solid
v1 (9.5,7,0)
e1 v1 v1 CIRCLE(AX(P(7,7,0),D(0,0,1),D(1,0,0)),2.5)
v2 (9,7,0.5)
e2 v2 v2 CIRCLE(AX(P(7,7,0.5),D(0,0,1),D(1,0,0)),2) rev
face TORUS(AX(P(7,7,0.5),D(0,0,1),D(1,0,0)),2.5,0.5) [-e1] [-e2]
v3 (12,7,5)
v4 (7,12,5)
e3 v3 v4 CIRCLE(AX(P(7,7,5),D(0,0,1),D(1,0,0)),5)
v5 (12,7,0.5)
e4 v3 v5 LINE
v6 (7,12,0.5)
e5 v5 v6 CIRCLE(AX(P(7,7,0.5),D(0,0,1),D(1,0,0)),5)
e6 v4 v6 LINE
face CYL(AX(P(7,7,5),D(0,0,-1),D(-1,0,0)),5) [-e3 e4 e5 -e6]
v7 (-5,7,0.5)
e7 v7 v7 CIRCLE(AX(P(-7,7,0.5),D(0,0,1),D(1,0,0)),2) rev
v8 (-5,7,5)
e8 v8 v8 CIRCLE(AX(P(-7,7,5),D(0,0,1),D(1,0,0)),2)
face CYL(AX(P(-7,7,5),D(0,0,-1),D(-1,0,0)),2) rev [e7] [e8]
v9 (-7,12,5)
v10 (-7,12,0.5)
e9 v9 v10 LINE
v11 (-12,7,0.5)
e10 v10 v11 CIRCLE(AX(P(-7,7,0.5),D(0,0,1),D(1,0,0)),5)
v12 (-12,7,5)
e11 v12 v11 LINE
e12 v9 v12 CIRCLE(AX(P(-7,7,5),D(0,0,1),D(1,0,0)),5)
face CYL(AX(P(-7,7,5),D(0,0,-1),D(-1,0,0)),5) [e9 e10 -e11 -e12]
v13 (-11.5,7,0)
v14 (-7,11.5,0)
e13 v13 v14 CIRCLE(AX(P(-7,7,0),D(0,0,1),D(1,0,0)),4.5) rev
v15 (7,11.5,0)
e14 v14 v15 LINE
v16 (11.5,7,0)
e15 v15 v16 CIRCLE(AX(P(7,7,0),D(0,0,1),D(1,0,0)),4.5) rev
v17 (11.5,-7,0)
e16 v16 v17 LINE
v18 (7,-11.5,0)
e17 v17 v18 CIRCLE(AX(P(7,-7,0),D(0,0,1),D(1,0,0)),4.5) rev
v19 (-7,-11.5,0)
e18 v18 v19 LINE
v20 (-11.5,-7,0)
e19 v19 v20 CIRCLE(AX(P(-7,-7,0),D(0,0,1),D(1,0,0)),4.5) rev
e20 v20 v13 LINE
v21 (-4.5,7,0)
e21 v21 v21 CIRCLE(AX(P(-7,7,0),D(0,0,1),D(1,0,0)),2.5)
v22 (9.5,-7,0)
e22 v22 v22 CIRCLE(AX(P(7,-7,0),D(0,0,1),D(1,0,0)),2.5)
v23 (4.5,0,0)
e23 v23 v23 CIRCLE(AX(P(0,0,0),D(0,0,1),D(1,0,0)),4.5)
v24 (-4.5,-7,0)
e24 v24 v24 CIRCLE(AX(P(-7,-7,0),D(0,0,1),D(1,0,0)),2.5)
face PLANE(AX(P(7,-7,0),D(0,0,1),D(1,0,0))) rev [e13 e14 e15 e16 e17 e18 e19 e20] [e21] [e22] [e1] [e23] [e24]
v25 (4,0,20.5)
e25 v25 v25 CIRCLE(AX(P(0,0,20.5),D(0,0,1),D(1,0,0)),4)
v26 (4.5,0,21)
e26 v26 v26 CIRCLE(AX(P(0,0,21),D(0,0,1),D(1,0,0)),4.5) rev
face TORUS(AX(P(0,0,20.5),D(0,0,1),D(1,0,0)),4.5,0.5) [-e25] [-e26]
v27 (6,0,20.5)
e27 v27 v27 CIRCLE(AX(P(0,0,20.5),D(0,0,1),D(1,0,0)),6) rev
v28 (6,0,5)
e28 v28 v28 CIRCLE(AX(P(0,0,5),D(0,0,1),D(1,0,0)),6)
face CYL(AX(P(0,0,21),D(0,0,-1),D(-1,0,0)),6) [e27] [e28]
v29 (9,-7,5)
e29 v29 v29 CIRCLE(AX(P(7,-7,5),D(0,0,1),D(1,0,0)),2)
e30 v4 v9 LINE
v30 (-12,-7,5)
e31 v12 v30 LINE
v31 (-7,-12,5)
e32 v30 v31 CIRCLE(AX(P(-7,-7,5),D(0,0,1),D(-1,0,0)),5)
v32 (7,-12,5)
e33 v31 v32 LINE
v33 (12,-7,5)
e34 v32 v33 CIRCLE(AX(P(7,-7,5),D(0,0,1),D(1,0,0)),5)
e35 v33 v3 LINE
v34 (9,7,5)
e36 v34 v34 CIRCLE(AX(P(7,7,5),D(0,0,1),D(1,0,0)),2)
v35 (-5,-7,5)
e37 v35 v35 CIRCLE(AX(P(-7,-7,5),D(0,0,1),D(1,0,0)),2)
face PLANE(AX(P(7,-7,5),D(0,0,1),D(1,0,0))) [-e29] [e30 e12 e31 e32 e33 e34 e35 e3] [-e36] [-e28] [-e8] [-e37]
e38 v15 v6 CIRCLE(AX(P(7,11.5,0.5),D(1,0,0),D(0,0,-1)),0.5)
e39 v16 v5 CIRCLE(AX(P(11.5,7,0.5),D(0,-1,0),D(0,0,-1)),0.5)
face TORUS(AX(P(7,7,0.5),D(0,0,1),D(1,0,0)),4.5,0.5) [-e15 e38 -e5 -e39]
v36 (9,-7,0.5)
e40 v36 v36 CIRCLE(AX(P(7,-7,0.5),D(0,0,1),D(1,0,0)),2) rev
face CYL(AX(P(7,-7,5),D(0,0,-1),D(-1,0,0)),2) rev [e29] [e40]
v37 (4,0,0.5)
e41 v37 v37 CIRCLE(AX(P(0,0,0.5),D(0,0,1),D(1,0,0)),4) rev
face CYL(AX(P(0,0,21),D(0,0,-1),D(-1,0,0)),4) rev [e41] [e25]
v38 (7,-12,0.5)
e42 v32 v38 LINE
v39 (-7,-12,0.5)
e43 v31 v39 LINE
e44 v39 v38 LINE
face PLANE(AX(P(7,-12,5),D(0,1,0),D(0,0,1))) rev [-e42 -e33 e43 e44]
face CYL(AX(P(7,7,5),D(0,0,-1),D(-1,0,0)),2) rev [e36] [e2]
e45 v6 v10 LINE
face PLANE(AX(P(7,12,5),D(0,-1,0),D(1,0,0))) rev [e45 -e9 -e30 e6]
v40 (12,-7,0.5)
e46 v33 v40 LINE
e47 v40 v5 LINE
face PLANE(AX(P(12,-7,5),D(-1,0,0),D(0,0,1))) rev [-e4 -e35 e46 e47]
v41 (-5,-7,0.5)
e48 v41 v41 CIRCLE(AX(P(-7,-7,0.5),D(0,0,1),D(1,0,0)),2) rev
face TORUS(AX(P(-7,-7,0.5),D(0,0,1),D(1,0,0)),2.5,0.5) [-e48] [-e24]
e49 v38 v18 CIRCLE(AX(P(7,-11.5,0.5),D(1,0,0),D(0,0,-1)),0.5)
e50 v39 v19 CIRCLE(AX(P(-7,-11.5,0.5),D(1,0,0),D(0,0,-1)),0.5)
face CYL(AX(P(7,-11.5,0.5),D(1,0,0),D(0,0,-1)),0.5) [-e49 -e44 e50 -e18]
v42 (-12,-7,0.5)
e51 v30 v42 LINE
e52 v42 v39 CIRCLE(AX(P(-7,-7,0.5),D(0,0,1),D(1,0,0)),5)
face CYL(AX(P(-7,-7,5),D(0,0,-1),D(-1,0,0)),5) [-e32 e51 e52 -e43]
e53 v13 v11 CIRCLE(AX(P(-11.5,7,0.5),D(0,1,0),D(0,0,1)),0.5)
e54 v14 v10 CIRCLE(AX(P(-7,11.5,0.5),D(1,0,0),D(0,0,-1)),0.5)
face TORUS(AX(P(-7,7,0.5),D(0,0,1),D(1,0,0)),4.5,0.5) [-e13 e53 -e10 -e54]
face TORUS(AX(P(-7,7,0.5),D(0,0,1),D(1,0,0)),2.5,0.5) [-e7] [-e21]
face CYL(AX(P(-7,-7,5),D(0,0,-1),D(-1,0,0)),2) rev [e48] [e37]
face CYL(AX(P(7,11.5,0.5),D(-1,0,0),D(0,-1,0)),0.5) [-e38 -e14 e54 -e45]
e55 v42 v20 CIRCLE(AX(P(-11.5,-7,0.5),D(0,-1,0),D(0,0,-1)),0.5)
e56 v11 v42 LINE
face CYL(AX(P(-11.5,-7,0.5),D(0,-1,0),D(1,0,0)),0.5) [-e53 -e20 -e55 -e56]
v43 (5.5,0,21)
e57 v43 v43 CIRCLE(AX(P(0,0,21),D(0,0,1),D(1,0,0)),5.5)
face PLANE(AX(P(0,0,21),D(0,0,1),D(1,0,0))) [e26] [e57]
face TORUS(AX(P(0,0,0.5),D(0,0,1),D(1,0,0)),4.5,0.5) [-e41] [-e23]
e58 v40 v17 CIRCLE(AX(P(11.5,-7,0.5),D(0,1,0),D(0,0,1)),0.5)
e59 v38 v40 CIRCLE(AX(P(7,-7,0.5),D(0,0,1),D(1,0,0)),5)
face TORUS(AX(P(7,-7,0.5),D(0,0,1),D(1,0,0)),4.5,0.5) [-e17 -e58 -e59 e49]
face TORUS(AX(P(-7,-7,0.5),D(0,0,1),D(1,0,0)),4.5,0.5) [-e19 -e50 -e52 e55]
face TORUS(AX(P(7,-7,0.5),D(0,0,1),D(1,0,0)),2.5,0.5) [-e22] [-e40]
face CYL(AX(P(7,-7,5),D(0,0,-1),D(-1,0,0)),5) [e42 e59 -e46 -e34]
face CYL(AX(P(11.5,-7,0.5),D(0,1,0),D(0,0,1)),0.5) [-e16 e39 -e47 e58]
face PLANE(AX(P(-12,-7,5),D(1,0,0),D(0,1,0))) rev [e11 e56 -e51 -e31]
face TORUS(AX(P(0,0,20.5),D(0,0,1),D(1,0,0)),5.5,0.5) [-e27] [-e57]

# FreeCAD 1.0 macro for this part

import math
import FreeCAD as App
import Part
import Sketcher
from FreeCAD import Vector


def edges_at(feature, points):
    """Names of the edges that pass closest to the given points."""
    edges = feature.Shape.Edges
    near = lambda p: min(range(len(edges)), key=lambda i: edges[i].distToShape(Part.Vertex(*p))[0])
    return sorted({f"Edge{near(p) + 1}" for p in points})

doc = App.newDocument("Part")
params = doc.addObject("Spreadsheet::Sheet", "Params")
for row, (alias, value) in enumerate([
    ("sketch1_diameter", "4 mm"),
    ("sketch1_radius", "5 mm"),
    ("sketch1_width", "14 mm"),
    ("pad1_length", "5 mm"),
    ("sketch2_diameter", "12 mm"),
    ("sketch2_diameter2", "8 mm"),
    ("pad2_length", "16 mm"),
    ("sketch3_diameter", "8 mm"),
    ("fillet_radius", "0.5 mm"),
], start=1):
    params.set(f"A{row}", alias)
    params.set(f"B{row}", "=" + value)
    params.setAlias(f"B{row}", alias)

body = doc.addObject("PartDesign::Body", "Body")

# Sketch on XY plane
sketch1 = body.newObject("Sketcher::SketchObject", "Sketch")
sketch1.AttachmentSupport = (doc.getObject("XY_Plane"), [""])
sketch1.MapMode = "FlatFace"
sketch1.addGeometry([
    Part.LineSegment(Vector(-7, -12, 0), Vector(7, -12, 0)),  # 0
    Part.ArcOfCircle(Part.Circle(Vector(7, -7, 0), Vector(0, 0, 1), 5), math.radians(-90), math.radians(0)),  # 1
    Part.LineSegment(Vector(12, -7, 0), Vector(12, 7, 0)),  # 2
    Part.ArcOfCircle(Part.Circle(Vector(7, 7, 0), Vector(0, 0, 1), 5), math.radians(0), math.radians(90)),  # 3
    Part.LineSegment(Vector(7, 12, 0), Vector(-7, 12, 0)),  # 4
    Part.ArcOfCircle(Part.Circle(Vector(-7, 7, 0), Vector(0, 0, 1), 5), math.radians(90), math.radians(180)),  # 5
    Part.LineSegment(Vector(-12, 7, 0), Vector(-12, -7, 0)),  # 6
    Part.ArcOfCircle(Part.Circle(Vector(-7, -7, 0), Vector(0, 0, 1), 5), math.radians(180), math.radians(270)),  # 7
    Part.Circle(Vector(7, -7, 0), Vector(0, 0, 1), 2),  # 8
    Part.Circle(Vector(-7, -7, 0), Vector(0, 0, 1), 2),  # 9
    Part.Circle(Vector(7, 7, 0), Vector(0, 0, 1), 2),  # 10
    Part.Circle(Vector(-7, 7, 0), Vector(0, 0, 1), 2),  # 11
], False)
sketch1.addConstraint([
    Sketcher.Constraint("Tangent", 0, 2, 1, 1),
    Sketcher.Constraint("Tangent", 1, 2, 2, 1),
    Sketcher.Constraint("Tangent", 2, 2, 3, 1),
    Sketcher.Constraint("Tangent", 3, 2, 4, 1),
    Sketcher.Constraint("Tangent", 4, 2, 5, 1),
    Sketcher.Constraint("Tangent", 5, 2, 6, 1),
    Sketcher.Constraint("Tangent", 6, 2, 7, 1),
    Sketcher.Constraint("Tangent", 7, 2, 0, 1),
    Sketcher.Constraint("Horizontal", 0),
    Sketcher.Constraint("Vertical", 2),
    Sketcher.Constraint("Horizontal", 4),
    Sketcher.Constraint("Vertical", 6),
    Sketcher.Constraint("Coincident", 8, 3, 1, 3),
    Sketcher.Constraint("Coincident", 9, 3, 7, 3),
    Sketcher.Constraint("Coincident", 10, 3, 3, 3),
    Sketcher.Constraint("Coincident", 11, 3, 5, 3),
    Sketcher.Constraint("Equal", 1, 3),
    Sketcher.Constraint("Equal", 3, 5),
    Sketcher.Constraint("Equal", 5, 7),
    Sketcher.Constraint("Equal", 8, 9),
    Sketcher.Constraint("Equal", 9, 10),
    Sketcher.Constraint("Equal", 10, 11),
    Sketcher.Constraint("Symmetric", 1, 3, 5, 3, -1, 1),
    Sketcher.Constraint("Equal", 4, 2),
    Sketcher.Constraint("Diameter", 8, 4.0),
    Sketcher.Constraint("Radius", 1, 5.0),
    Sketcher.Constraint("DistanceX", 0, 1, 0, 2, 14.0),
])
sketch1.setExpression("Constraints[24]", "Params.sketch1_diameter")
sketch1.setExpression("Constraints[25]", "Params.sketch1_radius")
sketch1.setExpression("Constraints[26]", "Params.sketch1_width")
pad1 = body.newObject("PartDesign::Pad", "Pad")
pad1.Profile = sketch1
pad1.setExpression("Length", "Params.pad1_length")

# Sketch on XY plane
sketch2 = body.newObject("Sketcher::SketchObject", "Sketch001")
sketch2.AttachmentSupport = (doc.getObject("XY_Plane"), [""])
sketch2.MapMode = "FlatFace"
sketch2.AttachmentOffset = App.Placement(Vector(0, 0, 5), App.Rotation())
sketch2.addGeometry([
    Part.Circle(Vector(0, 0, 0), Vector(0, 0, 1), 6),
    Part.Circle(Vector(0, 0, 0), Vector(0, 0, 1), 4),
], False)
sketch2.addConstraint([
    Sketcher.Constraint("Coincident", 0, 3, -1, 1),
    Sketcher.Constraint("Coincident", 1, 3, -1, 1),
    Sketcher.Constraint("Diameter", 0, 12.0),
    Sketcher.Constraint("Diameter", 1, 8.0),
])
sketch2.setExpression("Constraints[2]", "Params.sketch2_diameter")
sketch2.setExpression("Constraints[3]", "Params.sketch2_diameter2")
pad2 = body.newObject("PartDesign::Pad", "Pad001")
pad2.Profile = sketch2
pad2.setExpression("Length", "Params.pad2_length")

# Sketch on XY plane
sketch3 = body.newObject("Sketcher::SketchObject", "Sketch002")
sketch3.AttachmentSupport = (doc.getObject("XY_Plane"), [""])
sketch3.MapMode = "FlatFace"
sketch3.AttachmentOffset = App.Placement(Vector(0, 0, 5), App.Rotation())
sketch3.addGeometry(Part.Circle(Vector(0, 0, 0), Vector(0, 0, 1), 4), False)
sketch3.addConstraint([
    Sketcher.Constraint("Coincident", 0, 3, -1, 1),
    Sketcher.Constraint("Diameter", 0, 8.0),
])
sketch3.setExpression("Constraints[1]", "Params.sketch3_diameter")
pocket1 = body.newObject("PartDesign::Pocket", "Pocket")
pocket1.Profile = sketch3
pocket1.Type = "UpToFirst"
doc.recompute()

fillet = body.newObject("PartDesign::Fillet", "Fillet")
fillet.Base = (pocket1, edges_at(pocket1, [
    (0, 12, 0),
    (10.536, 10.536, 0),
    (12, 0, 0),
    (10.536, -10.536, 0),
    (-9, 7, 0),
    (5, 7, 0),
    (5, -7, 0),
    (-9, -7, 0),
    (-6, 0, 21),
    (-4, 0, 21),
    (-4, 0, 0),
    (0, -12, 0),
    (-10.536, -10.536, 0),
    (-12, 0, 0),
    (-10.536, 10.536, 0),
]))
fillet.setExpression("Radius", "Params.fillet_radius")

doc.recompute()
